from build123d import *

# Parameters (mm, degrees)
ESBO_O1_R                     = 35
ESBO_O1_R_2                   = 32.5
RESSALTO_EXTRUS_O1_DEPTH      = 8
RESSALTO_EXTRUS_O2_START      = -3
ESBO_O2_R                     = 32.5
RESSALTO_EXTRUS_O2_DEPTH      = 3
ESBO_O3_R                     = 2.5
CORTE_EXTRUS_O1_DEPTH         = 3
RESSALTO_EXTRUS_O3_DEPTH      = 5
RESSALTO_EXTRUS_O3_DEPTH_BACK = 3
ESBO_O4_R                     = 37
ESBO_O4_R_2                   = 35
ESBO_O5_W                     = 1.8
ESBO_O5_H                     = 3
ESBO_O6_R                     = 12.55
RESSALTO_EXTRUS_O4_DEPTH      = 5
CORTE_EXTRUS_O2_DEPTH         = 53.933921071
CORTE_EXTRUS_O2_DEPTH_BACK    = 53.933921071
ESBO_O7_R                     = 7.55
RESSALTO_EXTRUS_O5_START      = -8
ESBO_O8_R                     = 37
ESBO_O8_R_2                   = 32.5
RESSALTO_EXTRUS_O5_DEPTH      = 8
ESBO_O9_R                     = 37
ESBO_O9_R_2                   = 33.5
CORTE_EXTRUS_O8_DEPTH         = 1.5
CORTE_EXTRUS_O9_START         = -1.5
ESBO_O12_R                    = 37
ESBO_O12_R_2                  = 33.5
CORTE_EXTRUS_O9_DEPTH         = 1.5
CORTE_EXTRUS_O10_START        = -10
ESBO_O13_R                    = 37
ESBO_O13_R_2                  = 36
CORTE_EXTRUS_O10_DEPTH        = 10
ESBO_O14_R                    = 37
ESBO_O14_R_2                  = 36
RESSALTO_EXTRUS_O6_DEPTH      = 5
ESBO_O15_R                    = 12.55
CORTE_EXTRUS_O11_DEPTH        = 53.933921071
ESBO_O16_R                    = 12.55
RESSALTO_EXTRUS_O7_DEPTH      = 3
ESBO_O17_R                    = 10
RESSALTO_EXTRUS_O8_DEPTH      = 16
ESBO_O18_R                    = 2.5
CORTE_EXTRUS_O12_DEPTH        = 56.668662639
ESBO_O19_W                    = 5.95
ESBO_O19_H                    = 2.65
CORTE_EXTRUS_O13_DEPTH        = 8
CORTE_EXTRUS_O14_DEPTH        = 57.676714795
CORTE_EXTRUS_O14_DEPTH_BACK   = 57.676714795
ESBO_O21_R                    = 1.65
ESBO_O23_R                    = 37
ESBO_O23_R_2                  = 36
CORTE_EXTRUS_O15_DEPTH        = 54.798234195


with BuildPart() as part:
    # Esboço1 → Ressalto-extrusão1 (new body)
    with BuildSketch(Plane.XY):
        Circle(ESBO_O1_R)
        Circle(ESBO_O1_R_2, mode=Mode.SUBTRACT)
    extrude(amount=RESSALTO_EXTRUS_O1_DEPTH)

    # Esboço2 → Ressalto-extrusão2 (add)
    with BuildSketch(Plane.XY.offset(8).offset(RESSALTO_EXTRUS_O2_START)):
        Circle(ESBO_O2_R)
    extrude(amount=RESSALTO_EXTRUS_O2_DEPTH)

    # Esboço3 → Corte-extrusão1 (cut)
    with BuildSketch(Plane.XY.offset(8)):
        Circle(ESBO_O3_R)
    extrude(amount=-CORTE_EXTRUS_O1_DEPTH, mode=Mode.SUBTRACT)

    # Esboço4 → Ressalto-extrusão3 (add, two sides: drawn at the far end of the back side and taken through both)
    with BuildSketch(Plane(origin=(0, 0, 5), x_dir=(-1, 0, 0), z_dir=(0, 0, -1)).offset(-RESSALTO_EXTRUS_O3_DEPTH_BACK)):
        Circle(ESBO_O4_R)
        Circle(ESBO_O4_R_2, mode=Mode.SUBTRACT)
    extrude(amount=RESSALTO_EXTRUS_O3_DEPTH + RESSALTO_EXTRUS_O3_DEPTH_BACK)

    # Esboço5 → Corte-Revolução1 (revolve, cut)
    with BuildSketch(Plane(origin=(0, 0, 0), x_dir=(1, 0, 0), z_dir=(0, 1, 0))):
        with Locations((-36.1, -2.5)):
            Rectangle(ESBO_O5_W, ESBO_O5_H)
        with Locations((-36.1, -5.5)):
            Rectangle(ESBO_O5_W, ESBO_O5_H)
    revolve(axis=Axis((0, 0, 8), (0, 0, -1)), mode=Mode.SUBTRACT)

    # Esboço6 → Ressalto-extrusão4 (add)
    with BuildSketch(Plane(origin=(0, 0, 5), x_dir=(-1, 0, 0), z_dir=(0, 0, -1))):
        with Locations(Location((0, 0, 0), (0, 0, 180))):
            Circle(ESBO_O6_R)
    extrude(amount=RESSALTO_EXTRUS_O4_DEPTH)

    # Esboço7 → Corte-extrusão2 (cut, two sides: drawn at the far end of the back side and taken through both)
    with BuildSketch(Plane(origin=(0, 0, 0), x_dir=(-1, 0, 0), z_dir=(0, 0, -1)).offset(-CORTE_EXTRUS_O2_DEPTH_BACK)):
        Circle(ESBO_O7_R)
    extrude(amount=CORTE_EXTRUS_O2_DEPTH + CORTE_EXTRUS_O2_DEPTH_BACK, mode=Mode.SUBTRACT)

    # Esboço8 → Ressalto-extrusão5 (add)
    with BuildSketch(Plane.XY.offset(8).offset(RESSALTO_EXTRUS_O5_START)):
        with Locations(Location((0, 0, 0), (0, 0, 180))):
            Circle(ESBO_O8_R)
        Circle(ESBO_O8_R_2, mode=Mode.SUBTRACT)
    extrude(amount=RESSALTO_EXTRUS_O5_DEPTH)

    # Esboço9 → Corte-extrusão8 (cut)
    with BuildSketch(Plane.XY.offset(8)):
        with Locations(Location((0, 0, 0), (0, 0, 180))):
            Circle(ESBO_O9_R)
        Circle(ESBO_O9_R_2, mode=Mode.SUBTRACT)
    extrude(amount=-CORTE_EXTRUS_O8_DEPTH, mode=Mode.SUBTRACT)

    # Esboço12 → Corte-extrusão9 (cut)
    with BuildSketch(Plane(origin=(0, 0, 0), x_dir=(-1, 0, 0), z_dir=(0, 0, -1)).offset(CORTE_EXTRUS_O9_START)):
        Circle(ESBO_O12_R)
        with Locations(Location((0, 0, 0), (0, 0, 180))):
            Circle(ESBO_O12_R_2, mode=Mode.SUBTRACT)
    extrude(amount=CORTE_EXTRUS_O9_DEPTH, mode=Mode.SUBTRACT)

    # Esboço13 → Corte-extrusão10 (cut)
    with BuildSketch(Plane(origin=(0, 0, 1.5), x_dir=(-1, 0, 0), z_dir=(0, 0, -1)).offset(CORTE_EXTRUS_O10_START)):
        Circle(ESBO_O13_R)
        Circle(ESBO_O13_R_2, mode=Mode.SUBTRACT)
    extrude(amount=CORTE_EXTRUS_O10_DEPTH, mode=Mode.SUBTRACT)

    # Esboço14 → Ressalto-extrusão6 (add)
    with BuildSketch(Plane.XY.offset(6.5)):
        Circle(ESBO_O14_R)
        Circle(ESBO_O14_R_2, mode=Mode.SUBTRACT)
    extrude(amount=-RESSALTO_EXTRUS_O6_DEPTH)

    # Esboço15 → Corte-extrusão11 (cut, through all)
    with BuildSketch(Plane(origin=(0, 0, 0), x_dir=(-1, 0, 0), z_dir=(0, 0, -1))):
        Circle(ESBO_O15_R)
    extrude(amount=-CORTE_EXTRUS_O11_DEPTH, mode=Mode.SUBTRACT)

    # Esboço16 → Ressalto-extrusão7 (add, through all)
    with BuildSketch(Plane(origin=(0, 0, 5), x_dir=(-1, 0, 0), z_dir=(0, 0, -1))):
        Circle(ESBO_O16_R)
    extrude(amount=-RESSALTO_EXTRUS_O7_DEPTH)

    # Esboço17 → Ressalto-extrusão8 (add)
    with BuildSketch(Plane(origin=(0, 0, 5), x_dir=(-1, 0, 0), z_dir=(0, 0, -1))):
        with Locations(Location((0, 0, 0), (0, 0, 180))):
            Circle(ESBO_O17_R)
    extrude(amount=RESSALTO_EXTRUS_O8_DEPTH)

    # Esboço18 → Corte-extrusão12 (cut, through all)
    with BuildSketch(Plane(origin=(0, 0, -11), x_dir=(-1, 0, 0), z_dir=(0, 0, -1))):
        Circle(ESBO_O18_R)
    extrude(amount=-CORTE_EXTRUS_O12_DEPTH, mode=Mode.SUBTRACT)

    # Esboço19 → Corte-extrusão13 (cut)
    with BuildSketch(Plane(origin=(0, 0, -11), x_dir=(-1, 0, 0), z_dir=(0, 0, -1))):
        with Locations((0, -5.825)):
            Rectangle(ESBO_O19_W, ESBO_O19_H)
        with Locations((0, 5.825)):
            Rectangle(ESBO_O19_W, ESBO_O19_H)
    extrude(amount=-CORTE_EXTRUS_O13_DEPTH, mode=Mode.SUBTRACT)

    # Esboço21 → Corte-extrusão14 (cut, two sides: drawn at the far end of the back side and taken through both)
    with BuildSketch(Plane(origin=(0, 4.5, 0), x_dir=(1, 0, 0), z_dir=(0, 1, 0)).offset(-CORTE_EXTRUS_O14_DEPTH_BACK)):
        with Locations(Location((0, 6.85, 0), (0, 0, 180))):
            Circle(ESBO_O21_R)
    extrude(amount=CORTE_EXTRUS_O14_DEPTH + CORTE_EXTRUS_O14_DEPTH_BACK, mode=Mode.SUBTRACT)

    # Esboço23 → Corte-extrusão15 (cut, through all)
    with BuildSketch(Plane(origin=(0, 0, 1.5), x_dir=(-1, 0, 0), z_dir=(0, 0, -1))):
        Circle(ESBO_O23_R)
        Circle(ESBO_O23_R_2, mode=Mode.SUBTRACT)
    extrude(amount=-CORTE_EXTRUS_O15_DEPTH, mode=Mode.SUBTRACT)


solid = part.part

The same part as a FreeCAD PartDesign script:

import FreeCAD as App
import Part
import Sketcher
from FreeCAD import Vector
Q = App.Units.Quantity


def add_polygon(sketch, points):
    """Adds a closed chain of lines whose ends are joined by coincident constraints."""
    first, n = sketch.GeometryCount, len(points)
    for a, b in zip(points, points[1:] + points[:1]):
        sketch.addGeometry(Part.LineSegment(App.Vector(*a, 0), App.Vector(*b, 0)), False)
    for i in range(n):
        sketch.addConstraint(Sketcher.Constraint("Coincident", first + i, 2, first + (i + 1) % n, 1))

doc = App.newDocument("Part")
body = doc.addObject("PartDesign::Body", "Body")

# Sketch on XY plane
sketch1 = body.newObject("Sketcher::SketchObject", "Sketch")
sketch1.AttachmentSupport = (doc.getObject("XY_Plane"), [""])
sketch1.MapMode = "FlatFace"
sketch1.addGeometry(Part.Circle(Vector(0, 0, 0), Vector(0, 0, 1), 35), False)
sketch1.addGeometry(Part.Circle(Vector(0, 0, 0), Vector(0, 0, 1), 32.5), False)
sketch1.addConstraint(Sketcher.Constraint("Coincident", 0, 3, -1, 1))
sketch1.addConstraint(Sketcher.Constraint("Coincident", 1, 3, -1, 1))
sketch1.addConstraint(Sketcher.Constraint("Diameter", 0, Q("70 mm")))
sketch1.addConstraint(Sketcher.Constraint("Diameter", 1, Q("65 mm")))
pad1 = body.newObject("PartDesign::Pad", "Pad")
pad1.Profile = sketch1
pad1.Length = 8

# Sketch on XY plane
sketch2 = body.newObject("Sketcher::SketchObject", "Sketch001")
sketch2.AttachmentSupport = (doc.getObject("XY_Plane"), [""])
sketch2.MapMode = "FlatFace"
sketch2.AttachmentOffset = App.Placement(Vector(0, 0, 5), App.Rotation())
sketch2.addGeometry(Part.Circle(Vector(0, 0, 0), Vector(0, 0, 1), 32.5), False)
sketch2.addConstraint(Sketcher.Constraint("Coincident", 0, 3, -1, 1))
sketch2.addConstraint(Sketcher.Constraint("Diameter", 0, Q("65 mm")))
pad2 = body.newObject("PartDesign::Pad", "Pad001")
pad2.Profile = sketch2
pad2.Length = 3

# Sketch on XY plane
sketch3 = body.newObject("Sketcher::SketchObject", "Sketch002")
sketch3.AttachmentSupport = (doc.getObject("XY_Plane"), [""])
sketch3.MapMode = "FlatFace"
sketch3.AttachmentOffset = App.Placement(Vector(0, 0, 8), App.Rotation())
sketch3.addGeometry(Part.Circle(Vector(0, 0, 0), Vector(0, 0, 1), 2.5), False)
sketch3.addConstraint(Sketcher.Constraint("Coincident", 0, 3, -1, 1))
sketch3.addConstraint(Sketcher.Constraint("Diameter", 0, Q("5 mm")))
pocket1 = body.newObject("PartDesign::Pocket", "Pocket")
pocket1.Profile = sketch3
pocket1.Length = 3

# Sketch on XY plane
sketch4 = body.newObject("Sketcher::SketchObject", "Sketch003")
sketch4.AttachmentSupport = (doc.getObject("XY_Plane"), [""])
sketch4.MapMode = "FlatFace"
sketch4.AttachmentOffset = App.Placement(Vector(0, 0, 5), App.Rotation())
sketch4.addGeometry(Part.Circle(Vector(0, 0, 0), Vector(0, 0, 1), 37), False)
sketch4.addGeometry(Part.Circle(Vector(0, 0, 0), Vector(0, 0, 1), 35), False)
sketch4.addConstraint(Sketcher.Constraint("Coincident", 0, 3, -1, 1))
sketch4.addConstraint(Sketcher.Constraint("Coincident", 1, 3, -1, 1))
sketch4.addConstraint(Sketcher.Constraint("Diameter", 0, Q("74 mm")))
sketch4.addConstraint(Sketcher.Constraint("Diameter", 1, Q("70 mm")))
pad3 = body.newObject("PartDesign::Pad", "Pad002")
pad3.Profile = sketch4
pad3.Type = "TwoLengths"
pad3.Length = 5
pad3.Length2 = 3
pad3.Reversed = True

# Sketch on XZ plane
sketch5 = body.newObject("Sketcher::SketchObject", "Sketch004")
sketch5.AttachmentSupport = (doc.getObject("XZ_Plane"), [""])
sketch5.MapMode = "FlatFace"
add_polygon(sketch5, [(-37, 1), (-37, 7), (-35.2, 7), (-35.2, 1)])  # lines 0-3
sketch5.addConstraint(Sketcher.Constraint("Vertical", 0))
sketch5.addConstraint(Sketcher.Constraint("Horizontal", 1))
sketch5.addConstraint(Sketcher.Constraint("Vertical", 2))
sketch5.addConstraint(Sketcher.Constraint("Horizontal", 3))
sketch5.addConstraint(Sketcher.Constraint("DistanceY", 0, 1, 0, 2, Q("6 mm")))
sketch5.addConstraint(Sketcher.Constraint("DistanceX", 1, 1, 1, 2, Q("1.8 mm")))
sketch5.addConstraint(Sketcher.Constraint("DistanceX", 0, 2, -1, 1, Q("37 mm")))
sketch5.addConstraint(Sketcher.Constraint("DistanceY", -1, 1, 0, 2, Q("7 mm")))
groove = body.newObject("PartDesign::Groove", "Groove")
groove.Profile = sketch5
groove.ReferenceAxis = (sketch5, ["V_Axis"])
groove.Angle = 360

# Sketch on XY plane
sketch6 = body.newObject("Sketcher::SketchObject", "Sketch005")
sketch6.AttachmentSupport = (doc.getObject("XY_Plane"), [""])
sketch6.MapMode = "FlatFace"
sketch6.AttachmentOffset = App.Placement(Vector(0, 0, 5), App.Rotation())
sketch6.addGeometry(Part.Circle(Vector(0, 0, 0), Vector(0, 0, 1), 12.55), False)
sketch6.addConstraint(Sketcher.Constraint("Coincident", 0, 3, -1, 1))
sketch6.addConstraint(Sketcher.Constraint("Diameter", 0, Q("25.1 mm")))
pad4 = body.newObject("PartDesign::Pad", "Pad003")
pad4.Profile = sketch6
pad4.Length = 5
pad4.Reversed = True

# Sketch on XY plane
sketch7 = body.newObject("Sketcher::SketchObject", "Sketch006")
sketch7.AttachmentSupport = (doc.getObject("XY_Plane"), [""])
sketch7.MapMode = "FlatFace"
sketch7.addGeometry(Part.Circle(Vector(0, 0, 0), Vector(0, 0, 1), 7.55), False)
sketch7.addConstraint(Sketcher.Constraint("Coincident", 0, 3, -1, 1))
sketch7.addConstraint(Sketcher.Constraint("Diameter", 0, Q("15.1 mm")))
pocket2 = body.newObject("PartDesign::Pocket", "Pocket001")
pocket2.Profile = sketch7
pocket2.Type = "ThroughAll"
pocket2.Midplane = True

# Sketch on XY plane
sketch8 = body.newObject("Sketcher::SketchObject", "Sketch007")
sketch8.AttachmentSupport = (doc.getObject("XY_Plane"), [""])
sketch8.MapMode = "FlatFace"
sketch8.addGeometry(Part.Circle(Vector(0, 0, 0), Vector(0, 0, 1), 37), False)
sketch8.addGeometry(Part.Circle(Vector(0, 0, 0), Vector(0, 0, 1), 32.5), False)
sketch8.addConstraint(Sketcher.Constraint("Coincident", 0, 3, -1, 1))
sketch8.addConstraint(Sketcher.Constraint("Coincident", 1, 3, -1, 1))
sketch8.addConstraint(Sketcher.Constraint("Diameter", 0, Q("74 mm")))
sketch8.addConstraint(Sketcher.Constraint("Diameter", 1, Q("65 mm")))
pad5 = body.newObject("PartDesign::Pad", "Pad004")
pad5.Profile = sketch8
pad5.Length = 8

# Sketch on XY plane
sketch9 = body.newObject("Sketcher::SketchObject", "Sketch008")
sketch9.AttachmentSupport = (doc.getObject("XY_Plane"), [""])
sketch9.MapMode = "FlatFace"
sketch9.AttachmentOffset = App.Placement(Vector(0, 0, 8), App.Rotation())
sketch9.addGeometry(Part.Circle(Vector(0, 0, 0), Vector(0, 0, 1), 37), False)
sketch9.addGeometry(Part.Circle(Vector(0, 0, 0), Vector(0, 0, 1), 33.5), False)
sketch9.addConstraint(Sketcher.Constraint("Coincident", 0, 3, -1, 1))
sketch9.addConstraint(Sketcher.Constraint("Coincident", 1, 3, -1, 1))
sketch9.addConstraint(Sketcher.Constraint("Diameter", 0, Q("74 mm")))
sketch9.addConstraint(Sketcher.Constraint("Diameter", 1, Q("67 mm")))
pocket3 = body.newObject("PartDesign::Pocket", "Pocket002")
pocket3.Profile = sketch9
pocket3.Length = 1.5

# Sketch on XY plane
sketch10 = body.newObject("Sketcher::SketchObject", "Sketch009")
sketch10.AttachmentSupport = (doc.getObject("XY_Plane"), [""])
sketch10.MapMode = "FlatFace"
sketch10.AttachmentOffset = App.Placement(Vector(0, 0, 1.5), App.Rotation())
sketch10.addGeometry(Part.Circle(Vector(0, 0, 0), Vector(0, 0, 1), 37), False)
sketch10.addGeometry(Part.Circle(Vector(0, 0, 0), Vector(0, 0, 1), 33.5), False)
sketch10.addConstraint(Sketcher.Constraint("Coincident", 0, 3, -1, 1))
sketch10.addConstraint(Sketcher.Constraint("Coincident", 1, 3, -1, 1))
sketch10.addConstraint(Sketcher.Constraint("Diameter", 0, Q("74 mm")))
sketch10.addConstraint(Sketcher.Constraint("Diameter", 1, Q("67 mm")))
pocket4 = body.newObject("PartDesign::Pocket", "Pocket003")
pocket4.Profile = sketch10
pocket4.Length = 1.5

# Sketch on XY plane
sketch11 = body.newObject("Sketcher::SketchObject", "Sketch010")
sketch11.AttachmentSupport = (doc.getObject("XY_Plane"), [""])
sketch11.MapMode = "FlatFace"
sketch11.AttachmentOffset = App.Placement(Vector(0, 0, 11.5), App.Rotation())
sketch11.addGeometry(Part.Circle(Vector(0, 0, 0), Vector(0, 0, 1), 37), False)
sketch11.addGeometry(Part.Circle(Vector(0, 0, 0), Vector(0, 0, 1), 36), False)
sketch11.addConstraint(Sketcher.Constraint("Coincident", 0, 3, -1, 1))
sketch11.addConstraint(Sketcher.Constraint("Coincident", 1, 3, -1, 1))
sketch11.addConstraint(Sketcher.Constraint("Diameter", 0, Q("74 mm")))
sketch11.addConstraint(Sketcher.Constraint("Diameter", 1, Q("72 mm")))
pocket5 = body.newObject("PartDesign::Pocket", "Pocket004")
pocket5.Profile = sketch11
pocket5.Length = 10

# Sketch on XY plane
sketch12 = body.newObject("Sketcher::SketchObject", "Sketch011")
sketch12.AttachmentSupport = (doc.getObject("XY_Plane"), [""])
sketch12.MapMode = "FlatFace"
sketch12.AttachmentOffset = App.Placement(Vector(0, 0, 6.5), App.Rotation())
sketch12.addGeometry(Part.Circle(Vector(0, 0, 0), Vector(0, 0, 1), 37), False)
sketch12.addGeometry(Part.Circle(Vector(0, 0, 0), Vector(0, 0, 1), 36), False)
sketch12.addConstraint(Sketcher.Constraint("Coincident", 0, 3, -1, 1))
sketch12.addConstraint(Sketcher.Constraint("Coincident", 1, 3, -1, 1))
sketch12.addConstraint(Sketcher.Constraint("Diameter", 0, Q("74 mm")))
sketch12.addConstraint(Sketcher.Constraint("Diameter", 1, Q("72 mm")))
pad6 = body.newObject("PartDesign::Pad", "Pad005")
pad6.Profile = sketch12
pad6.Length = 5
pad6.Reversed = True

# Sketch on XY plane
sketch13 = body.newObject("Sketcher::SketchObject", "Sketch012")
sketch13.AttachmentSupport = (doc.getObject("XY_Plane"), [""])
sketch13.MapMode = "FlatFace"
sketch13.addGeometry(Part.Circle(Vector(0, 0, 0), Vector(0, 0, 1), 12.55), False)
sketch13.addConstraint(Sketcher.Constraint("Coincident", 0, 3, -1, 1))
sketch13.addConstraint(Sketcher.Constraint("Diameter", 0, Q("25.1 mm")))
pocket6 = body.newObject("PartDesign::Pocket", "Pocket005")
pocket6.Profile = sketch13
pocket6.Type = "ThroughAll"
pocket6.Reversed = True

# Sketch on XY plane
sketch14 = body.newObject("Sketcher::SketchObject", "Sketch013")
sketch14.AttachmentSupport = (doc.getObject("XY_Plane"), [""])
sketch14.MapMode = "FlatFace"
sketch14.AttachmentOffset = App.Placement(Vector(0, 0, 5), App.Rotation())
sketch14.addGeometry(Part.Circle(Vector(0, 0, 0), Vector(0, 0, 1), 12.55), False)
sketch14.addConstraint(Sketcher.Constraint("Coincident", 0, 3, -1, 1))
sketch14.addConstraint(Sketcher.Constraint("Diameter", 0, Q("25.1 mm")))
pad7 = body.newObject("PartDesign::Pad", "Pad006")
pad7.Profile = sketch14
pad7.Length = 3

# Sketch on XY plane
sketch15 = body.newObject("Sketcher::SketchObject", "Sketch014")
sketch15.AttachmentSupport = (doc.getObject("XY_Plane"), [""])
sketch15.MapMode = "FlatFace"
sketch15.AttachmentOffset = App.Placement(Vector(0, 0, 5), App.Rotation())
sketch15.addGeometry(Part.Circle(Vector(0, 0, 0), Vector(0, 0, 1), 10), False)
sketch15.addConstraint(Sketcher.Constraint("Coincident", 0, 3, -1, 1))
sketch15.addConstraint(Sketcher.Constraint("Diameter", 0, Q("20 mm")))
pad8 = body.newObject("PartDesign::Pad", "Pad007")
pad8.Profile = sketch15
pad8.Length = 16
pad8.Reversed = True

# Sketch on XY plane
sketch16 = body.newObject("Sketcher::SketchObject", "Sketch015")
sketch16.AttachmentSupport = (doc.getObject("XY_Plane"), [""])
sketch16.MapMode = "FlatFace"
sketch16.AttachmentOffset = App.Placement(Vector(0, 0, -11), App.Rotation())
sketch16.addGeometry(Part.Circle(Vector(0, 0, 0), Vector(0, 0, 1), 2.5), False)
sketch16.addConstraint(Sketcher.Constraint("Coincident", 0, 3, -1, 1))
sketch16.addConstraint(Sketcher.Constraint("Diameter", 0, Q("5 mm")))
pocket7 = body.newObject("PartDesign::Pocket", "Pocket006")
pocket7.Profile = sketch16
pocket7.Type = "ThroughAll"
pocket7.Reversed = True

# Sketch on XY plane
sketch17 = body.newObject("Sketcher::SketchObject", "Sketch016")
sketch17.AttachmentSupport = (doc.getObject("XY_Plane"), [""])
sketch17.MapMode = "FlatFace"
sketch17.AttachmentOffset = App.Placement(Vector(0, 0, -11), App.Rotation())
add_polygon(sketch17, [(2.975, -4.5), (2.975, -7.15), (-2.975, -7.15), (-2.975, -4.5)])  # lines 0-3
add_polygon(sketch17, [(2.975, 7.15), (2.975, 4.5), (-2.975, 4.5), (-2.975, 7.15)])  # lines 4-7
sketch17.addConstraint(Sketcher.Constraint("Vertical", 0))
sketch17.addConstraint(Sketcher.Constraint("Horizontal", 1))
sketch17.addConstraint(Sketcher.Constraint("Vertical", 2))
sketch17.addConstraint(Sketcher.Constraint("Horizontal", 3))
sketch17.addConstraint(Sketcher.Constraint("Vertical", 4))
sketch17.addConstraint(Sketcher.Constraint("Horizontal", 5))
sketch17.addConstraint(Sketcher.Constraint("Vertical", 6))
sketch17.addConstraint(Sketcher.Constraint("Horizontal", 7))
sketch17.addConstraint(Sketcher.Constraint("Symmetric", 2, 2, 4, 2, -1, 1))
sketch17.addConstraint(Sketcher.Constraint("Symmetric", 0, 2, 6, 2, -1, 1))
sketch17.addConstraint(Sketcher.Constraint("Vertical", 3, 2, 4, 2))
sketch17.addConstraint(Sketcher.Constraint("DistanceY", 3, 2, 4, 2, Q("9 mm")))
sketch17.addConstraint(Sketcher.Constraint("DistanceX", 1, 2, 1, 1, Q("5.95 mm")))
sketch17.addConstraint(Sketcher.Constraint("DistanceY", 0, 2, 0, 1, Q("2.65 mm")))
pocket8 = body.newObject("PartDesign::Pocket", "Pocket007")
pocket8.Profile = sketch17
pocket8.Length = 8
pocket8.Reversed = True

# Sketch on XZ plane
sketch18 = body.newObject("Sketcher::SketchObject", "Sketch017")
sketch18.AttachmentSupport = (doc.getObject("XZ_Plane"), [""])
sketch18.MapMode = "FlatFace"
sketch18.AttachmentOffset = App.Placement(Vector(0, 0, -4.5), App.Rotation())
sketch18.addGeometry(Part.Circle(Vector(0, -6.85, 0), Vector(0, 0, 1), 1.65), False)
sketch18.addConstraint(Sketcher.Constraint("PointOnObject", 0, 3, -2))
sketch18.addConstraint(Sketcher.Constraint("Diameter", 0, Q("3.3 mm")))
sketch18.addConstraint(Sketcher.Constraint("DistanceY", 0, 3, -1, 1, Q("6.85 mm")))
pocket9 = body.newObject("PartDesign::Pocket", "Pocket008")
pocket9.Profile = sketch18
pocket9.Type = "ThroughAll"
pocket9.Midplane = True

# Sketch on XY plane
sketch19 = body.newObject("Sketcher::SketchObject", "Sketch018")
sketch19.AttachmentSupport = (doc.getObject("XY_Plane"), [""])
sketch19.MapMode = "FlatFace"
sketch19.AttachmentOffset = App.Placement(Vector(0, 0, 1.5), App.Rotation())
sketch19.addGeometry(Part.Circle(Vector(0, 0, 0), Vector(0, 0, 1), 37), False)
sketch19.addGeometry(Part.Circle(Vector(0, 0, 0), Vector(0, 0, 1), 36), False)
sketch19.addConstraint(Sketcher.Constraint("Coincident", 0, 3, -1, 1))
sketch19.addConstraint(Sketcher.Constraint("Coincident", 1, 3, -1, 1))
sketch19.addConstraint(Sketcher.Constraint("Diameter", 0, Q("74 mm")))
sketch19.addConstraint(Sketcher.Constraint("Diameter", 1, Q("72 mm")))
pocket10 = body.newObject("PartDesign::Pocket", "Pocket009")
pocket10.Profile = sketch19
pocket10.Type = "ThroughAll"
pocket10.Reversed = True

doc.recompute()
